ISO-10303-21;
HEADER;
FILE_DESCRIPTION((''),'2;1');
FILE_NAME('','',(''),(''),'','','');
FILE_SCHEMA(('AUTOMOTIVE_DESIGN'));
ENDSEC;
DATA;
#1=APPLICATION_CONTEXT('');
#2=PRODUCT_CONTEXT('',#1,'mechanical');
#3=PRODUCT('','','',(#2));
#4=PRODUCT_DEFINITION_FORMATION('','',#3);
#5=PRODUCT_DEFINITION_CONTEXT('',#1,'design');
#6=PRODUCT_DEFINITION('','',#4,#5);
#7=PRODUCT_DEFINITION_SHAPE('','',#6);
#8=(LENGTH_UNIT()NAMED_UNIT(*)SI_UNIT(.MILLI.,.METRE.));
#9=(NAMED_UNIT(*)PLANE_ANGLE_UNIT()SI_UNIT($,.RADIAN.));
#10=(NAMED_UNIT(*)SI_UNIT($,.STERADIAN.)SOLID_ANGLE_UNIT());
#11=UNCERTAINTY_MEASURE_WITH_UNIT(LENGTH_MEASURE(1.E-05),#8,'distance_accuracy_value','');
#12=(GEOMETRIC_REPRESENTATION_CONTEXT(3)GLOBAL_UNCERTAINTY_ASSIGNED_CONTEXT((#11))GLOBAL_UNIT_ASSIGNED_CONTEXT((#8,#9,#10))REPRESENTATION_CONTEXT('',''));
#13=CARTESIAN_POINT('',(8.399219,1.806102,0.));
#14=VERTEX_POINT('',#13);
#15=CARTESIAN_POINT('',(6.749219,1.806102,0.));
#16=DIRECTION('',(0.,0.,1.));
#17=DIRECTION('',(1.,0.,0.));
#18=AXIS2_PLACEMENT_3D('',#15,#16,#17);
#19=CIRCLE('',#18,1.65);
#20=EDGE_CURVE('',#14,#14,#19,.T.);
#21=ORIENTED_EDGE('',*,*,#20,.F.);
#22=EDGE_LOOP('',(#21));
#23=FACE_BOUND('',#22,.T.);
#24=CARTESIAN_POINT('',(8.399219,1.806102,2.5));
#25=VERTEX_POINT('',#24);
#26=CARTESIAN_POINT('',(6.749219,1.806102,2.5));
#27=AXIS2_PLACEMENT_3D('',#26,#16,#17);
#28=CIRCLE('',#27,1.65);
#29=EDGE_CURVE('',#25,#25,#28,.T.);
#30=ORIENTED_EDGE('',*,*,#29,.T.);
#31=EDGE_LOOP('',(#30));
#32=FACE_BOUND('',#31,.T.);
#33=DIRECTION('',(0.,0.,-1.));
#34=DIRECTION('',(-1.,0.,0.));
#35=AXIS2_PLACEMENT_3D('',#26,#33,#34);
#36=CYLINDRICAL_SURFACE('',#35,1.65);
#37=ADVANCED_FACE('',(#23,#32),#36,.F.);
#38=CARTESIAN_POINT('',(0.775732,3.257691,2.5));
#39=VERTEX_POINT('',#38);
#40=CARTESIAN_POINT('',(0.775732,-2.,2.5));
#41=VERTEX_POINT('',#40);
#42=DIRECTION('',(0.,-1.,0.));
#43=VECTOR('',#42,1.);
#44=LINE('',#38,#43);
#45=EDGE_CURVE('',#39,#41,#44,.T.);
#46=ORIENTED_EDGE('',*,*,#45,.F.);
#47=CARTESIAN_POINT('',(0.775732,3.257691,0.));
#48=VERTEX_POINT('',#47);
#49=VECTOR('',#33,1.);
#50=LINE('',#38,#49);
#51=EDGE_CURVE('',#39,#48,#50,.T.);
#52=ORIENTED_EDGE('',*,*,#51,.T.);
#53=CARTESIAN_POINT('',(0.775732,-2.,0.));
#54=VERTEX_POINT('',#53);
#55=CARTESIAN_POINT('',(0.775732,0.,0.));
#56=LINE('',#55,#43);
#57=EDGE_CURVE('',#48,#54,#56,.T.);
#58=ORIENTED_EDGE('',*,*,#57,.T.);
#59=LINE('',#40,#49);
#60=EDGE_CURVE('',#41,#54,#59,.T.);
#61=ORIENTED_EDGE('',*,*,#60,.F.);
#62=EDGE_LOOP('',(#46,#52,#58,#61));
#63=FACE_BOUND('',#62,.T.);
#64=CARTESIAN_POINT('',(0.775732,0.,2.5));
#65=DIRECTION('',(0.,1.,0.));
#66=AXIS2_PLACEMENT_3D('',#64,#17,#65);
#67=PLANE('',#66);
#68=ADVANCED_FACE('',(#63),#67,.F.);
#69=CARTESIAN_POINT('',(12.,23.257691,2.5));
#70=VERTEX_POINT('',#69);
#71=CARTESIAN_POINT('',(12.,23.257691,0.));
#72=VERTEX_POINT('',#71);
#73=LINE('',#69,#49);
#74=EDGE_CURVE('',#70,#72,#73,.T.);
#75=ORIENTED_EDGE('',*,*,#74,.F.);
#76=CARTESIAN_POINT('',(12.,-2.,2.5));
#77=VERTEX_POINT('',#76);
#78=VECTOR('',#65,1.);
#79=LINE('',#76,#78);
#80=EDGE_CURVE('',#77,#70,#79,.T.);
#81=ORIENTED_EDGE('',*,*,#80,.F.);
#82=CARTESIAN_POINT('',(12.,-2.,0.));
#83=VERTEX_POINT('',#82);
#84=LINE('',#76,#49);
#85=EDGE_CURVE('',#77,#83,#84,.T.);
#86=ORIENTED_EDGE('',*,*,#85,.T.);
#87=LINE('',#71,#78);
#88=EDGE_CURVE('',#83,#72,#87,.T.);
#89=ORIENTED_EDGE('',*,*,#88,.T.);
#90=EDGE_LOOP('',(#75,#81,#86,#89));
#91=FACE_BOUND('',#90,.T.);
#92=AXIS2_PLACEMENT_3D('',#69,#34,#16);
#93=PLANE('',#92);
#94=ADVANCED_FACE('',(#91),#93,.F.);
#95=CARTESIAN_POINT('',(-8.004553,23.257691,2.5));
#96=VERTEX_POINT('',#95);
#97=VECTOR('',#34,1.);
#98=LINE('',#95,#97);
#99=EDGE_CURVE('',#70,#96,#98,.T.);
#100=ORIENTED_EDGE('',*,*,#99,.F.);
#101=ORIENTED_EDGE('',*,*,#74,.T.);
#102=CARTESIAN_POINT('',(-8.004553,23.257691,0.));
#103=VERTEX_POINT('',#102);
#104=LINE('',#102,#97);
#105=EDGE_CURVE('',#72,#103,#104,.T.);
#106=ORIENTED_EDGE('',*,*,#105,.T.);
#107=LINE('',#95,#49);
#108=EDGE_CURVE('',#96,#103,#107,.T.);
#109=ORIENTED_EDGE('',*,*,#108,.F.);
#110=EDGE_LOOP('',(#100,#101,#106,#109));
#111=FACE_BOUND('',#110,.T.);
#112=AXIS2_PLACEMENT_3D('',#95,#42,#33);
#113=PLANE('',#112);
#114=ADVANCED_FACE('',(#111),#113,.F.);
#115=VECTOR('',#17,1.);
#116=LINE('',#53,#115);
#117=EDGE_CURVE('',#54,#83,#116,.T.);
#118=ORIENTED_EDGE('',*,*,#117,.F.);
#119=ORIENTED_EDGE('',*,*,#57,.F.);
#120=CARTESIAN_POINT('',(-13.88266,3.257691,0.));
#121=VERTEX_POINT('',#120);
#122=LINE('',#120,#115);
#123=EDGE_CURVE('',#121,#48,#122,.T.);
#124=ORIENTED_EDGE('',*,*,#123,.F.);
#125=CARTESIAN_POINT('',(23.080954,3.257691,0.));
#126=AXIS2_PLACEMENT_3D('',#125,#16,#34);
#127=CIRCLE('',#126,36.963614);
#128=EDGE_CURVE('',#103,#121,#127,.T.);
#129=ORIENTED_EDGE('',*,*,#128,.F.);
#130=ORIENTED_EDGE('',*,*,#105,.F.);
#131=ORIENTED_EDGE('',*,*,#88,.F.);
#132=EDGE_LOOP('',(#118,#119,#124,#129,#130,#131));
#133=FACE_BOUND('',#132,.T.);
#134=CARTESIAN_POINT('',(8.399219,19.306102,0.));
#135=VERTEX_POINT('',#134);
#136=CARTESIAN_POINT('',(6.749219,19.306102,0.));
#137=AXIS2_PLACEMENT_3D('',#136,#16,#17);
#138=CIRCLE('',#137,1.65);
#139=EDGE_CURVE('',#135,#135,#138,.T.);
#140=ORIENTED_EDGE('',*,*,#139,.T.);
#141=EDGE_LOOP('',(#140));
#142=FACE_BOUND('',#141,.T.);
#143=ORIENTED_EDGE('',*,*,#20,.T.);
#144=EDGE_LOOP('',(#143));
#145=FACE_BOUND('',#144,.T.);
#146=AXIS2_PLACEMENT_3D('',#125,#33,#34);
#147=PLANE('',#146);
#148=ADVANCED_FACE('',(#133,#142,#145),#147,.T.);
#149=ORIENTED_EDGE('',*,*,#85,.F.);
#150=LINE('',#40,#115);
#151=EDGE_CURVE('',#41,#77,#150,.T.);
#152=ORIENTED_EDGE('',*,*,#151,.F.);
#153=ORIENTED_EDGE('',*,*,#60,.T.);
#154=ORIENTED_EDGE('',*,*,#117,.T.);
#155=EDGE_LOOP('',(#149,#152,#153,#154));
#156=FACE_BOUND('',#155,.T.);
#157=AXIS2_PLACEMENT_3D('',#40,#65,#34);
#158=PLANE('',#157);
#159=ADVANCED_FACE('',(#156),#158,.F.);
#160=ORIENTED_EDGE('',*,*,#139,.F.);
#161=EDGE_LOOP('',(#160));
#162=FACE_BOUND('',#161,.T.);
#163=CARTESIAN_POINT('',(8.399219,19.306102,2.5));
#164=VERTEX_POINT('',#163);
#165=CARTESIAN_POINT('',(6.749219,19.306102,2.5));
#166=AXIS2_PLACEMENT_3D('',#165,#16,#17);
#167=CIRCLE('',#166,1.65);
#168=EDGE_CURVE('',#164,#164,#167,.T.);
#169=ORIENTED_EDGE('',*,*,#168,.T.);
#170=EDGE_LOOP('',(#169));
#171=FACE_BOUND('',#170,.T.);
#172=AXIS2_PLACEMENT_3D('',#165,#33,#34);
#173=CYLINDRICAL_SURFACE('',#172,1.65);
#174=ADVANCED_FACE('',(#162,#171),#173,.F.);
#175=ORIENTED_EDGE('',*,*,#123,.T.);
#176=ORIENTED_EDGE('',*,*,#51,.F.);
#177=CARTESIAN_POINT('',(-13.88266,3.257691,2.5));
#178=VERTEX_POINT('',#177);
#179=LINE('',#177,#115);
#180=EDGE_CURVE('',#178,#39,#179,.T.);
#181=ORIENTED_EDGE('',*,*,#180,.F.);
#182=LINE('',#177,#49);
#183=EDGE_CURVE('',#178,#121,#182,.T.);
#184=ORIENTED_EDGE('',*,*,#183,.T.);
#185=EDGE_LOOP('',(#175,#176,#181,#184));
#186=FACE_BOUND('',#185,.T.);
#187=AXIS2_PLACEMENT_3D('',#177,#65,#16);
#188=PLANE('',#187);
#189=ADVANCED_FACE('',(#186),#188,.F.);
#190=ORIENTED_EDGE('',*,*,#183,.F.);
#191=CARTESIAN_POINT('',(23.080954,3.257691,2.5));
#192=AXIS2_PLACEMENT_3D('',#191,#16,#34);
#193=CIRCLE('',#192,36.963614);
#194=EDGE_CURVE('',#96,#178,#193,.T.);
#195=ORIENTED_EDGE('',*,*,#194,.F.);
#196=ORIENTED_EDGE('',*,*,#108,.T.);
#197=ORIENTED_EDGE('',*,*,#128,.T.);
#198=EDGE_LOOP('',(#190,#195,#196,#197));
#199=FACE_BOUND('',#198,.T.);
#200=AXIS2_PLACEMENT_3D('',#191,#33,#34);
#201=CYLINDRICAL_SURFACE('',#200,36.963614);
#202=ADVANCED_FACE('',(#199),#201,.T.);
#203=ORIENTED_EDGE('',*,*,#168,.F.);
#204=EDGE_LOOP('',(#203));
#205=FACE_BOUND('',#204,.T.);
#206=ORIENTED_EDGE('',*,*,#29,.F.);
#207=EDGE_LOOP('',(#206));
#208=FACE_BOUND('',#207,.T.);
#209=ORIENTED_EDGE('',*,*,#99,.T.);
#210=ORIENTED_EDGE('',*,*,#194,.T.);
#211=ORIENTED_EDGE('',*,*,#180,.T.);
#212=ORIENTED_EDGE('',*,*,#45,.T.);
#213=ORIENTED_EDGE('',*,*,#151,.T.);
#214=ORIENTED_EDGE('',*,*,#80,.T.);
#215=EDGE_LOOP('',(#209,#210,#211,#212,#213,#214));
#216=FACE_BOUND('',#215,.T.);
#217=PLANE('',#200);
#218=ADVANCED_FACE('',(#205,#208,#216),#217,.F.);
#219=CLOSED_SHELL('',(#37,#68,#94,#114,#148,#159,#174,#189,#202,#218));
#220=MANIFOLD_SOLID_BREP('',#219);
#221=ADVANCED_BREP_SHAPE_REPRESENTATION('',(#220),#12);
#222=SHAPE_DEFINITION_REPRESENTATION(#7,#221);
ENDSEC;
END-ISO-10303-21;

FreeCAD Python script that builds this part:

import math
import FreeCAD as App
import Part
import Sketcher
from FreeCAD import Vector

doc = App.newDocument("Part")
body = doc.addObject("PartDesign::Body", "Body")

# Sketch on XY plane
sketch1 = body.newObject("Sketcher::SketchObject", "Sketch")
sketch1.AttachmentSupport = (doc.getObject("XY_Plane"), [""])
sketch1.MapMode = "FlatFace"
sketch1.addGeometry(Part.LineSegment(Vector(12, 23.3, 0), Vector(-8, 23.3, 0)), False)
sketch1.addGeometry(Part.ArcOfCircle(Part.Circle(Vector(23.1, 3.3, 0), Vector(0, 0, 1), 37), math.radians(147), math.radians(180)), False)
sketch1.addGeometry(Part.LineSegment(Vector(-13.9, 3.3, 0), Vector(0.8, 3.3, 0)), False)
sketch1.addGeometry(Part.LineSegment(Vector(0.8, 3.3, 0), Vector(0.8, -2, 0)), False)
sketch1.addGeometry(Part.LineSegment(Vector(0.8, -2, 0), Vector(12, -2, 0)), False)
sketch1.addGeometry(Part.LineSegment(Vector(12, -2, 0), Vector(12, 23.3, 0)), False)
sketch1.addGeometry(Part.Circle(Vector(6.7, 1.8, 0), Vector(0, 0, 1), 1.6), False)
sketch1.addGeometry(Part.Circle(Vector(6.7, 19.3, 0), Vector(0, 0, 1), 1.6), False)
sketch1.addConstraint(Sketcher.Constraint("Coincident", 0, 2, 1, 1))
sketch1.addConstraint(Sketcher.Constraint("Coincident", 1, 2, 2, 1))
sketch1.addConstraint(Sketcher.Constraint("Coincident", 2, 2, 3, 1))
sketch1.addConstraint(Sketcher.Constraint("Coincident", 3, 2, 4, 1))
sketch1.addConstraint(Sketcher.Constraint("Coincident", 4, 2, 5, 1))
sketch1.addConstraint(Sketcher.Constraint("Coincident", 5, 2, 0, 1))
sketch1.addConstraint(Sketcher.Constraint("Horizontal", 0))
sketch1.addConstraint(Sketcher.Constraint("Horizontal", 2))
sketch1.addConstraint(Sketcher.Constraint("Vertical", 3))
sketch1.addConstraint(Sketcher.Constraint("Horizontal", 4))
sketch1.addConstraint(Sketcher.Constraint("Vertical", 5))
sketch1.addConstraint(Sketcher.Constraint("Equal", 6, 7))
sketch1.addConstraint(Sketcher.Constraint("Vertical", 6, 3, 7, 3))
sketch1.addConstraint(Sketcher.Constraint("Diameter", 6, 3.3))
sketch1.addConstraint(Sketcher.Constraint("DistanceY", 3, 2, -1, 1, 2.0))
sketch1.addConstraint(Sketcher.Constraint("DistanceX", -1, 1, 4, 2, 12.0))
sketch1.addConstraint(Sketcher.Constraint("DistanceY", 1, 3, 0, 2, 20.0))
sketch1.addConstraint(Sketcher.Constraint("DistanceY", 1, 2, 0, 2, 20.0))
sketch1.addConstraint(Sketcher.Constraint("DistanceY", 6, 3, 7, 3, 17.5))
sketch1.addConstraint(Sketcher.Constraint("Radius", 1, 36.963614))
sketch1.addConstraint(Sketcher.Constraint("DistanceX", 2, 1, 2, 2, 14.658392))
sketch1.addConstraint(Sketcher.Constraint("DistanceX", 4, 1, 4, 2, 11.224268))
sketch1.addConstraint(Sketcher.Constraint("DistanceY", 3, 2, 3, 1, 5.257691))
sketch1.addConstraint(Sketcher.Constraint("DistanceY", -1, 1, 6, 3, 1.806102))
sketch1.addConstraint(Sketcher.Constraint("DistanceX", -1, 1, 6, 3, 6.749219))
pad1 = body.newObject("PartDesign::Pad", "Pad")
pad1.Profile = sketch1
pad1.Length = 2.5

doc.recompute()
